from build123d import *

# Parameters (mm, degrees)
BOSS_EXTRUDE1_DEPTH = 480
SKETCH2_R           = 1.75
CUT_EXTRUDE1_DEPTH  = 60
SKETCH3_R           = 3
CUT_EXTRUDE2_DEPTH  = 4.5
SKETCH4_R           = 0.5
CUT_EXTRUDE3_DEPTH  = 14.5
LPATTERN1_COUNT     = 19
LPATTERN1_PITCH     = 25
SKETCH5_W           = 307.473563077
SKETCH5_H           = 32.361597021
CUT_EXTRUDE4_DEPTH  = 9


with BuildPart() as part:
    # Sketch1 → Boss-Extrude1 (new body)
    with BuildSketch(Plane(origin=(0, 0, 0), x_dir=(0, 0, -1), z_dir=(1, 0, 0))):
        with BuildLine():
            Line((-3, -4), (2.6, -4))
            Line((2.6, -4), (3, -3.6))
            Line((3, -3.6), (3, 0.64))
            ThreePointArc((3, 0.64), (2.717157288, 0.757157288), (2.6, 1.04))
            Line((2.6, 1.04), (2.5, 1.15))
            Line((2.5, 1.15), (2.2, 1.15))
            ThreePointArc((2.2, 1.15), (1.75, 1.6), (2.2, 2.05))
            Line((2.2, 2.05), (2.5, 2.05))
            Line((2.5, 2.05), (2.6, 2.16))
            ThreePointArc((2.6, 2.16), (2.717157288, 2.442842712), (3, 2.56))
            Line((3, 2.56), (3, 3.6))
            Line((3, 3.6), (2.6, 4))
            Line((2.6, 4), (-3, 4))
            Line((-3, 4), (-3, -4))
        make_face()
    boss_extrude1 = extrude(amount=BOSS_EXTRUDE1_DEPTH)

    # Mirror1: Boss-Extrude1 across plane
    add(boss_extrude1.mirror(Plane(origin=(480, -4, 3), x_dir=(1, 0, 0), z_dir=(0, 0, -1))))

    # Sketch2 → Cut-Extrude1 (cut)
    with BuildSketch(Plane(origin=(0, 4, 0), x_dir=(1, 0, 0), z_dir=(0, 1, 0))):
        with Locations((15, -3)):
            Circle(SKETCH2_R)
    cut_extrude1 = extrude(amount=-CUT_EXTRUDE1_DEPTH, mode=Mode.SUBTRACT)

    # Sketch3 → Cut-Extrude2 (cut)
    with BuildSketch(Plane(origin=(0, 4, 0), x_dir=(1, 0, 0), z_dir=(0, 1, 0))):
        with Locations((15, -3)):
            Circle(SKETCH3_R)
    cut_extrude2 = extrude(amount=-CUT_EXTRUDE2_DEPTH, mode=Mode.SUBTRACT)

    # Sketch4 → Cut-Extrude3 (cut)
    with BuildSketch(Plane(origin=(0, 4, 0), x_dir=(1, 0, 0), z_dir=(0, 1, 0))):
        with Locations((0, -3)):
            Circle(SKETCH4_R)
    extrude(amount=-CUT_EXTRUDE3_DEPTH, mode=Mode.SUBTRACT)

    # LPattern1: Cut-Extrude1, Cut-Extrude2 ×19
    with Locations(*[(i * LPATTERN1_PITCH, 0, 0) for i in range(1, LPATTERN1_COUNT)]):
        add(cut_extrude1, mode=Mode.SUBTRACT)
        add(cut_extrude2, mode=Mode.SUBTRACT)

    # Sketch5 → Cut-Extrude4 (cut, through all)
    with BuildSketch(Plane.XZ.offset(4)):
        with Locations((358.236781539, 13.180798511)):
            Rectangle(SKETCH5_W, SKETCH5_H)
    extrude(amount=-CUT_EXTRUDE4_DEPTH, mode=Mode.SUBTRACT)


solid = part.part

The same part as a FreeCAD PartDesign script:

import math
import FreeCAD as App
import Part
import Sketcher

V = App.Vector

doc = App.newDocument("Part")
params = doc.addObject("Spreadsheet::Sheet", "Params")
for row, (alias, value) in enumerate([
    ("sketch1_radius", "0.4 mm"),
    ("sketch1_width", "8 mm"),
    ("sketch1_radius2", "0.45 mm"),
    ("sketch1_height", "5.6 mm"),
    ("sketch1_height2", "0.3 mm"),
    ("pad1_length", "480 mm"),
    ("sketch2_diameter", "3.5 mm"),
    ("pocket1_length", "60 mm"),
    ("sketch3_diameter", "6 mm"),
    ("pocket2_length", "4.5 mm"),
    ("sketch4_diameter", "1 mm"),
    ("pocket3_length", "14.5 mm"),
    ("linearpattern_pitch", "25 mm"),
], start=1):
    params.set(f"A{row}", alias)
    params.set(f"B{row}", "=" + value)
    params.setAlias(f"B{row}", alias)

body = doc.addObject("PartDesign::Body", "Body")

# Sketch on YZ plane
sketch1 = body.newObject("Sketcher::SketchObject", "Sketch")
sketch1.AttachmentSupport = (doc.getObject("YZ_Plane"), [""])
sketch1.MapMode = "FlatFace"
sketch1.addGeometry(Part.LineSegment(V(-4, 3, 0), V(-4, -2.6, 0)), False)
sketch1.addGeometry(Part.LineSegment(V(-4, -2.6, 0), V(-3.6, -3, 0)), False)
sketch1.addGeometry(Part.LineSegment(V(-3.6, -3, 0), V(0.64, -3, 0)), False)
sketch1.addGeometry(Part.ArcOfCircle(Part.Circle(V(1.04, -3, 0), V(0, 0, 1), 0.4), math.radians(90), math.radians(180)), False)
sketch1.addGeometry(Part.LineSegment(V(1.04, -2.6, 0), V(1.15, -2.5, 0)), False)
sketch1.addGeometry(Part.LineSegment(V(1.15, -2.5, 0), V(1.15, -2.2, 0)), False)
sketch1.addGeometry(Part.ArcOfCircle(Part.Circle(V(1.6, -2.2, 0), V(0, 0, 1), 0.45), math.radians(0), math.radians(180)), False)
sketch1.addGeometry(Part.LineSegment(V(2.05, -2.2, 0), V(2.05, -2.5, 0)), False)
sketch1.addGeometry(Part.LineSegment(V(2.05, -2.5, 0), V(2.16, -2.6, 0)), False)
sketch1.addGeometry(Part.ArcOfCircle(Part.Circle(V(2.16, -3, 0), V(0, 0, 1), 0.4), math.radians(0), math.radians(90)), False)
sketch1.addGeometry(Part.LineSegment(V(2.56, -3, 0), V(3.6, -3, 0)), False)
sketch1.addGeometry(Part.LineSegment(V(3.6, -3, 0), V(4, -2.6, 0)), False)
sketch1.addGeometry(Part.LineSegment(V(4, -2.6, 0), V(4, 3, 0)), False)
sketch1.addGeometry(Part.LineSegment(V(4, 3, 0), V(-4, 3, 0)), False)
sketch1.addConstraint(Sketcher.Constraint("Coincident", 0, 2, 1, 1))
sketch1.addConstraint(Sketcher.Constraint("Coincident", 1, 2, 2, 1))
sketch1.addConstraint(Sketcher.Constraint("Coincident", 2, 2, 3, 2))
sketch1.addConstraint(Sketcher.Constraint("Coincident", 3, 1, 4, 1))
sketch1.addConstraint(Sketcher.Constraint("Coincident", 4, 2, 5, 1))
sketch1.addConstraint(Sketcher.Constraint("Tangent", 5, 2, 6, 2))
sketch1.addConstraint(Sketcher.Constraint("Tangent", 6, 1, 7, 1))
sketch1.addConstraint(Sketcher.Constraint("Coincident", 7, 2, 8, 1))
sketch1.addConstraint(Sketcher.Constraint("Coincident", 8, 2, 9, 2))
sketch1.addConstraint(Sketcher.Constraint("Coincident", 9, 1, 10, 1))
sketch1.addConstraint(Sketcher.Constraint("Coincident", 10, 2, 11, 1))
sketch1.addConstraint(Sketcher.Constraint("Coincident", 11, 2, 12, 1))
sketch1.addConstraint(Sketcher.Constraint("Coincident", 12, 2, 13, 1))
sketch1.addConstraint(Sketcher.Constraint("Coincident", 13, 2, 0, 1))
sketch1.addConstraint(Sketcher.Constraint("Vertical", 0))
sketch1.addConstraint(Sketcher.Constraint("Horizontal", 2))
sketch1.addConstraint(Sketcher.Constraint("Vertical", 5))
sketch1.addConstraint(Sketcher.Constraint("Vertical", 7))
sketch1.addConstraint(Sketcher.Constraint("Horizontal", 10))
sketch1.addConstraint(Sketcher.Constraint("Vertical", 12))
sketch1.addConstraint(Sketcher.Constraint("Horizontal", 13))
sketch1.addConstraint(Sketcher.Constraint("Equal", 3, 9))
sketch1.addConstraint(Sketcher.Constraint("Symmetric", 1, 2, 10, 2, -2))
sketch1.addConstraint(Sketcher.Constraint("Symmetric", 0, 2, 11, 2, -2))
sketch1.addConstraint(Sketcher.Constraint("Perpendicular", 1, 11))
sketch1.addConstraint(Sketcher.Constraint("Horizontal", 3, 3, 9, 3))
sketch1.addConstraint(Sketcher.Constraint("Horizontal", 9, 3, 1, 2))
sketch1.addConstraint(Sketcher.Constraint("Horizontal", 0, 2, 3, 1))
sketch1.addConstraint(Sketcher.Constraint("Horizontal", 4, 2, 7, 2))
sketch1.addConstraint(Sketcher.Constraint("Vertical", 9, 3, 8, 2))
sketch1.addConstraint(Sketcher.Constraint("Equal", 4, 8))
sketch1.addConstraint(Sketcher.Constraint("Radius", 3, 0.4))
sketch1.addConstraint(Sketcher.Constraint("DistanceX", 13, 2, 13, 1, 8.0))
sketch1.addConstraint(Sketcher.Constraint("Radius", 6, 0.45))
sketch1.addConstraint(Sketcher.Constraint("DistanceY", 0, 2, 0, 1, 5.6))
sketch1.addConstraint(Sketcher.Constraint("DistanceY", 5, 1, 5, 2, 0.3))
sketch1.addConstraint(Sketcher.Constraint("DistanceY", 3, 3, -1, 1, 3.0))
sketch1.addConstraint(Sketcher.Constraint("DistanceX", 2, 1, 2, 2, 4.24))
sketch1.addConstraint(Sketcher.Constraint("DistanceX", 10, 1, 10, 2, 1.04))
sketch1.addConstraint(Sketcher.Constraint("DistanceX", -1, 1, 6, 3, 1.6))
sketch1.addConstraint(Sketcher.Constraint("DistanceY", 6, 3, -1, 1, 2.2))
sketch1.setExpression("Constraints[31]", "Params.sketch1_radius")
sketch1.setExpression("Constraints[32]", "Params.sketch1_width")
sketch1.setExpression("Constraints[33]", "Params.sketch1_radius2")
sketch1.setExpression("Constraints[34]", "Params.sketch1_height")
sketch1.setExpression("Constraints[35]", "Params.sketch1_height2")
pad1 = body.newObject("PartDesign::Pad", "Pad")
pad1.Profile = sketch1
pad1.setExpression("Length", "Params.pad1_length")
doc.recompute()

datumplane = body.newObject("PartDesign::Plane", "DatumPlane")
datumplane.AttachmentSupport = (doc.getObject("XY_Plane"), [""])
datumplane.MapMode = "FlatFace"
datumplane.AttachmentOffset = App.Placement(V(0, 0, 3), App.Rotation())
mirrored = body.newObject("PartDesign::Mirrored", "Mirrored")
mirrored.Originals = [pad1]
mirrored.MirrorPlane = (datumplane, [""])
body.Tip = mirrored

# Sketch on XZ plane
sketch2 = body.newObject("Sketcher::SketchObject", "Sketch001")
sketch2.AttachmentSupport = (doc.getObject("XZ_Plane"), [""])
sketch2.MapMode = "FlatFace"
sketch2.AttachmentOffset = App.Placement(V(0, 0, -4), App.Rotation())
sketch2.addGeometry(Part.Circle(V(15, 3, 0), V(0, 0, 1), 1.75), False)
sketch2.addConstraint(Sketcher.Constraint("Diameter", 0, 3.5))
sketch2.addConstraint(Sketcher.Constraint("DistanceX", -1, 1, 0, 3, 15.0))
sketch2.addConstraint(Sketcher.Constraint("DistanceY", -1, 1, 0, 3, 3.0))
sketch2.setExpression("Constraints[0]", "Params.sketch2_diameter")
pocket1 = body.newObject("PartDesign::Pocket", "Pocket")
pocket1.Profile = sketch2
pocket1.setExpression("Length", "Params.pocket1_length")
pocket1.Reversed = True

# Sketch on XZ plane
sketch3 = body.newObject("Sketcher::SketchObject", "Sketch002")
sketch3.AttachmentSupport = (doc.getObject("XZ_Plane"), [""])
sketch3.MapMode = "FlatFace"
sketch3.AttachmentOffset = App.Placement(V(0, 0, -4), App.Rotation())
sketch3.addGeometry(Part.Circle(V(15, 3, 0), V(0, 0, 1), 3), False)
sketch3.addConstraint(Sketcher.Constraint("Diameter", 0, 6.0))
sketch3.addConstraint(Sketcher.Constraint("DistanceX", -1, 1, 0, 3, 15.0))
sketch3.addConstraint(Sketcher.Constraint("DistanceY", -1, 1, 0, 3, 3.0))
sketch3.setExpression("Constraints[0]", "Params.sketch3_diameter")
pocket2 = body.newObject("PartDesign::Pocket", "Pocket001")
pocket2.Profile = sketch3
pocket2.setExpression("Length", "Params.pocket2_length")
pocket2.Reversed = True

# Sketch on XZ plane
sketch4 = body.newObject("Sketcher::SketchObject", "Sketch003")
sketch4.AttachmentSupport = (doc.getObject("XZ_Plane"), [""])
sketch4.MapMode = "FlatFace"
sketch4.AttachmentOffset = App.Placement(V(0, 0, -4), App.Rotation())
sketch4.addGeometry(Part.Circle(V(0, 3, 0), V(0, 0, 1), 0.5), False)
sketch4.addConstraint(Sketcher.Constraint("PointOnObject", 0, 3, -2))
sketch4.addConstraint(Sketcher.Constraint("Diameter", 0, 1.0))
sketch4.addConstraint(Sketcher.Constraint("DistanceY", -1, 1, 0, 3, 3.0))
sketch4.setExpression("Constraints[1]", "Params.sketch4_diameter")
pocket3 = body.newObject("PartDesign::Pocket", "Pocket002")
pocket3.Profile = sketch4
pocket3.setExpression("Length", "Params.pocket3_length")
pocket3.Reversed = True
doc.recompute()

linearpattern = body.newObject("PartDesign::LinearPattern", "LinearPattern")
linearpattern.Originals = [pocket1, pocket2]
linearpattern.Direction = (doc.getObject("X_Axis"), [""])
linearpattern.Mode = "offset"
linearpattern.setExpression("Offset", "Params.linearpattern_pitch")
linearpattern.Occurrences = 19
body.Tip = linearpattern

# Sketch on XZ plane
sketch5 = body.newObject("Sketcher::SketchObject", "Sketch004")
sketch5.AttachmentSupport = (doc.getObject("XZ_Plane"), [""])
sketch5.MapMode = "FlatFace"
sketch5.AttachmentOffset = App.Placement(V(0, 0, 4), App.Rotation())
sketch5.addGeometry(Part.LineSegment(V(204.5, 29.361597, 0), V(204.5, -3, 0)), False)
sketch5.addGeometry(Part.LineSegment(V(204.5, -3, 0), V(511.973563, -3, 0)), False)
sketch5.addGeometry(Part.LineSegment(V(511.973563, -3, 0), V(511.973563, 29.361597, 0)), False)
sketch5.addGeometry(Part.LineSegment(V(511.973563, 29.361597, 0), V(204.5, 29.361597, 0)), False)
sketch5.addConstraint(Sketcher.Constraint("Coincident", 0, 2, 1, 1))
sketch5.addConstraint(Sketcher.Constraint("Coincident", 1, 2, 2, 1))
sketch5.addConstraint(Sketcher.Constraint("Coincident", 2, 2, 3, 1))
sketch5.addConstraint(Sketcher.Constraint("Coincident", 3, 2, 0, 1))
sketch5.addConstraint(Sketcher.Constraint("Vertical", 0))
sketch5.addConstraint(Sketcher.Constraint("Horizontal", 1))
sketch5.addConstraint(Sketcher.Constraint("Vertical", 2))
sketch5.addConstraint(Sketcher.Constraint("Horizontal", 3))
sketch5.addConstraint(Sketcher.Constraint("DistanceY", 0, 2, -1, 1, 3.0))
sketch5.addConstraint(Sketcher.Constraint("DistanceX", -1, 1, 0, 2, 204.5))
sketch5.addConstraint(Sketcher.Constraint("DistanceX", 1, 1, 1, 2, 307.473563))
sketch5.addConstraint(Sketcher.Constraint("DistanceY", 0, 2, 0, 1, 32.361597))
pocket4 = body.newObject("PartDesign::Pocket", "Pocket003")
pocket4.Profile = sketch5
pocket4.Type = "ThroughAll"

doc.recompute()
